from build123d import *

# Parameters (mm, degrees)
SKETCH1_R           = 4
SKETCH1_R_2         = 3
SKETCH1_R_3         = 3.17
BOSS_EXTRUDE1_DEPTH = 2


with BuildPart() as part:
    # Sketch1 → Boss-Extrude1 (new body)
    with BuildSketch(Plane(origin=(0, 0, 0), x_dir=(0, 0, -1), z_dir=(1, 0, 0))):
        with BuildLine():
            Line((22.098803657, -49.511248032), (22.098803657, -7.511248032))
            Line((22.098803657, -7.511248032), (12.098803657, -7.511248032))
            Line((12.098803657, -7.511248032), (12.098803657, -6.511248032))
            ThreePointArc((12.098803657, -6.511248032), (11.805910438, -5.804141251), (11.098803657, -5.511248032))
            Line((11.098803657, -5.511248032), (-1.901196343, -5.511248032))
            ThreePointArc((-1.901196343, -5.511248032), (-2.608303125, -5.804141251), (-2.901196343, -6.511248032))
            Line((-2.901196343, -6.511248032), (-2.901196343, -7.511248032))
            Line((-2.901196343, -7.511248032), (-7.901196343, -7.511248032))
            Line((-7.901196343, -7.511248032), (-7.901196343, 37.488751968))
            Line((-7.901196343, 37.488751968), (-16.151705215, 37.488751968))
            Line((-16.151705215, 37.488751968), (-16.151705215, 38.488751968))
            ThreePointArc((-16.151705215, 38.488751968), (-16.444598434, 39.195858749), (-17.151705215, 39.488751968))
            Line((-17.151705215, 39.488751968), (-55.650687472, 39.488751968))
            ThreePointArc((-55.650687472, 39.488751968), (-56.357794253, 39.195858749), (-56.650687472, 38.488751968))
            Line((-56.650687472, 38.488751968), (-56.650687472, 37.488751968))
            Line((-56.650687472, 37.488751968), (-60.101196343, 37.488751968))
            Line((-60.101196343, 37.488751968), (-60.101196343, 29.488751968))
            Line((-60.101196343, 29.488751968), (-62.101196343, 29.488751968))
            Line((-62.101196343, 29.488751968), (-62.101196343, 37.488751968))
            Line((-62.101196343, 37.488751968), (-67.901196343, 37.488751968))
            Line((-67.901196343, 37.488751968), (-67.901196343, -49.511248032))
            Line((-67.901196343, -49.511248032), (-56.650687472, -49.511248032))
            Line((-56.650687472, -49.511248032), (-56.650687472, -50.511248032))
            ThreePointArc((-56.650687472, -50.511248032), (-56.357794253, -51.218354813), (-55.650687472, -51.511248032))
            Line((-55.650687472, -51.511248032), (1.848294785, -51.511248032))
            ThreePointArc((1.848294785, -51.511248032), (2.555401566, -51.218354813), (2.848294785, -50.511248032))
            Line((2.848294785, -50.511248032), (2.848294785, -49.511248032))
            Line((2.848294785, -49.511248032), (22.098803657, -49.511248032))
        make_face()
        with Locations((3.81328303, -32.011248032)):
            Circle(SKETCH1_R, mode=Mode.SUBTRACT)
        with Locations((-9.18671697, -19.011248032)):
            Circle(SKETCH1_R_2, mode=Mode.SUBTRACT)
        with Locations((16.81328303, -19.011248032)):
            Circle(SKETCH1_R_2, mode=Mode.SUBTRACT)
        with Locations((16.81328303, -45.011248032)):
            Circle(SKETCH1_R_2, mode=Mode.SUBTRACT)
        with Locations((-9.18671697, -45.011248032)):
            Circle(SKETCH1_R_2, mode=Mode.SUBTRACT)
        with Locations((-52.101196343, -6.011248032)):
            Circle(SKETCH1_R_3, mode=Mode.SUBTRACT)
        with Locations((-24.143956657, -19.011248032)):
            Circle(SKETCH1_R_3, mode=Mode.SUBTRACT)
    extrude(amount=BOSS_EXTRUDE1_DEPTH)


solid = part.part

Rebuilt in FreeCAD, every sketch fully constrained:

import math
import FreeCAD as App
import Part
import Sketcher
from FreeCAD import Vector
Q = App.Units.Quantity

doc = App.newDocument("Part")
params = doc.addObject("Spreadsheet::Sheet", "Params")
for row, (alias, value) in enumerate([
    ("sketch1_diameter", "6 mm"),
    ("sketch1_diameter2", "8 mm"),
    ("sketch1_radius", "1 mm"),
    ("sketch1_diameter3", "6.34 mm"),
    ("sketch1_width", "42 mm"),
    ("pad1_length", "2 mm"),
], start=1):
    params.set(f"A{row}", alias)
    params.set(f"B{row}", "=" + value)
    params.setAlias(f"B{row}", alias)

body = doc.addObject("PartDesign::Body", "Body")

# Sketch on YZ plane
sketch1 = body.newObject("Sketcher::SketchObject", "Sketch")
sketch1.AttachmentSupport = (doc.getObject("YZ_Plane"), [""])
sketch1.MapMode = "FlatFace"
sketch1.addGeometry(Part.LineSegment(Vector(-49.5, -22.1, 0), Vector(-7.5, -22.1, 0)), False)
sketch1.addGeometry(Part.LineSegment(Vector(-7.5, -22.1, 0), Vector(-7.5, -12.1, 0)), False)
sketch1.addGeometry(Part.LineSegment(Vector(-7.5, -12.1, 0), Vector(-6.5, -12.1, 0)), False)
sketch1.addGeometry(Part.ArcOfCircle(Part.Circle(Vector(-6.5, -11.1, 0), Vector(0, 0, 1), 1), math.radians(-90), math.radians(0)), False)
sketch1.addGeometry(Part.LineSegment(Vector(-5.5, -11.1, 0), Vector(-5.5, 1.9, 0)), False)
sketch1.addGeometry(Part.ArcOfCircle(Part.Circle(Vector(-6.5, 1.9, 0), Vector(0, 0, 1), 1), math.radians(0), math.radians(90)), False)
sketch1.addGeometry(Part.LineSegment(Vector(-6.5, 2.9, 0), Vector(-7.5, 2.9, 0)), False)
sketch1.addGeometry(Part.LineSegment(Vector(-7.5, 2.9, 0), Vector(-7.5, 7.9, 0)), False)
sketch1.addGeometry(Part.LineSegment(Vector(-7.5, 7.9, 0), Vector(37.5, 7.9, 0)), False)
sketch1.addGeometry(Part.LineSegment(Vector(37.5, 7.9, 0), Vector(37.5, 16.2, 0)), False)
sketch1.addGeometry(Part.LineSegment(Vector(37.5, 16.2, 0), Vector(38.5, 16.2, 0)), False)
sketch1.addGeometry(Part.ArcOfCircle(Part.Circle(Vector(38.5, 17.2, 0), Vector(0, 0, 1), 1), math.radians(-90), math.radians(0)), False)
sketch1.addGeometry(Part.LineSegment(Vector(39.5, 17.2, 0), Vector(39.5, 55.7, 0)), False)
sketch1.addGeometry(Part.ArcOfCircle(Part.Circle(Vector(38.5, 55.7, 0), Vector(0, 0, 1), 1), math.radians(0), math.radians(90)), False)
sketch1.addGeometry(Part.LineSegment(Vector(38.5, 56.7, 0), Vector(37.5, 56.7, 0)), False)
sketch1.addGeometry(Part.LineSegment(Vector(37.5, 56.7, 0), Vector(37.5, 60.1, 0)), False)
sketch1.addGeometry(Part.LineSegment(Vector(37.5, 60.1, 0), Vector(29.5, 60.1, 0)), False)
sketch1.addGeometry(Part.LineSegment(Vector(29.5, 60.1, 0), Vector(29.5, 62.1, 0)), False)
sketch1.addGeometry(Part.LineSegment(Vector(29.5, 62.1, 0), Vector(37.5, 62.1, 0)), False)
sketch1.addGeometry(Part.LineSegment(Vector(37.5, 62.1, 0), Vector(37.5, 67.9, 0)), False)
sketch1.addGeometry(Part.LineSegment(Vector(37.5, 67.9, 0), Vector(-49.5, 67.9, 0)), False)
sketch1.addGeometry(Part.LineSegment(Vector(-49.5, 67.9, 0), Vector(-49.5, 56.7, 0)), False)
sketch1.addGeometry(Part.LineSegment(Vector(-49.5, 56.7, 0), Vector(-50.5, 56.7, 0)), False)
sketch1.addGeometry(Part.ArcOfCircle(Part.Circle(Vector(-50.5, 55.7, 0), Vector(0, 0, 1), 1), math.radians(90), math.radians(180)), False)
sketch1.addGeometry(Part.LineSegment(Vector(-51.5, 55.7, 0), Vector(-51.5, -1.8, 0)), False)
sketch1.addGeometry(Part.ArcOfCircle(Part.Circle(Vector(-50.5, -1.8, 0), Vector(0, 0, 1), 1), math.radians(-180), math.radians(-90)), False)
sketch1.addGeometry(Part.LineSegment(Vector(-50.5, -2.8, 0), Vector(-49.5, -2.8, 0)), False)
sketch1.addGeometry(Part.LineSegment(Vector(-49.5, -2.8, 0), Vector(-49.5, -22.1, 0)), False)
sketch1.addGeometry(Part.Circle(Vector(-45, 9.2, 0), Vector(0, 0, 1), 3), False)
sketch1.addGeometry(Part.Circle(Vector(-45, -16.8, 0), Vector(0, 0, 1), 3), False)
sketch1.addGeometry(Part.Circle(Vector(-32, -3.8, 0), Vector(0, 0, 1), 4), False)
sketch1.addGeometry(Part.Circle(Vector(-19, 24.1, 0), Vector(0, 0, 1), 3.2), False)
sketch1.addGeometry(Part.Circle(Vector(-6, 52.1, 0), Vector(0, 0, 1), 3.2), False)
sketch1.addGeometry(Part.Circle(Vector(-19, 9.2, 0), Vector(0, 0, 1), 3), False)
sketch1.addGeometry(Part.Circle(Vector(-19, -16.8, 0), Vector(0, 0, 1), 3), False)
sketch1.addConstraint(Sketcher.Constraint("Coincident", 0, 2, 1, 1))
sketch1.addConstraint(Sketcher.Constraint("Coincident", 1, 2, 2, 1))
sketch1.addConstraint(Sketcher.Constraint("Tangent", 2, 2, 3, 1))
sketch1.addConstraint(Sketcher.Constraint("Tangent", 3, 2, 4, 1))
sketch1.addConstraint(Sketcher.Constraint("Tangent", 4, 2, 5, 1))
sketch1.addConstraint(Sketcher.Constraint("Tangent", 5, 2, 6, 1))
sketch1.addConstraint(Sketcher.Constraint("Coincident", 6, 2, 7, 1))
sketch1.addConstraint(Sketcher.Constraint("Coincident", 7, 2, 8, 1))
sketch1.addConstraint(Sketcher.Constraint("Coincident", 8, 2, 9, 1))
sketch1.addConstraint(Sketcher.Constraint("Coincident", 9, 2, 10, 1))
sketch1.addConstraint(Sketcher.Constraint("Tangent", 10, 2, 11, 1))
sketch1.addConstraint(Sketcher.Constraint("Tangent", 11, 2, 12, 1))
sketch1.addConstraint(Sketcher.Constraint("Tangent", 12, 2, 13, 1))
sketch1.addConstraint(Sketcher.Constraint("Tangent", 13, 2, 14, 1))
sketch1.addConstraint(Sketcher.Constraint("Coincident", 14, 2, 15, 1))
sketch1.addConstraint(Sketcher.Constraint("Coincident", 15, 2, 16, 1))
sketch1.addConstraint(Sketcher.Constraint("Coincident", 16, 2, 17, 1))
sketch1.addConstraint(Sketcher.Constraint("Coincident", 17, 2, 18, 1))
sketch1.addConstraint(Sketcher.Constraint("Coincident", 18, 2, 19, 1))
sketch1.addConstraint(Sketcher.Constraint("Coincident", 19, 2, 20, 1))
sketch1.addConstraint(Sketcher.Constraint("Coincident", 20, 2, 21, 1))
sketch1.addConstraint(Sketcher.Constraint("Coincident", 21, 2, 22, 1))
sketch1.addConstraint(Sketcher.Constraint("Tangent", 22, 2, 23, 1))
sketch1.addConstraint(Sketcher.Constraint("Tangent", 23, 2, 24, 1))
sketch1.addConstraint(Sketcher.Constraint("Tangent", 24, 2, 25, 1))
sketch1.addConstraint(Sketcher.Constraint("Tangent", 25, 2, 26, 1))
sketch1.addConstraint(Sketcher.Constraint("Coincident", 26, 2, 27, 1))
sketch1.addConstraint(Sketcher.Constraint("Coincident", 27, 2, 0, 1))
sketch1.addConstraint(Sketcher.Constraint("Horizontal", 0))
sketch1.addConstraint(Sketcher.Constraint("Vertical", 1))
sketch1.addConstraint(Sketcher.Constraint("Horizontal", 2))
sketch1.addConstraint(Sketcher.Constraint("Vertical", 4))
sketch1.addConstraint(Sketcher.Constraint("Horizontal", 6))
sketch1.addConstraint(Sketcher.Constraint("Vertical", 7))
sketch1.addConstraint(Sketcher.Constraint("Horizontal", 8))
sketch1.addConstraint(Sketcher.Constraint("Vertical", 9))
sketch1.addConstraint(Sketcher.Constraint("Horizontal", 10))
sketch1.addConstraint(Sketcher.Constraint("Vertical", 12))
sketch1.addConstraint(Sketcher.Constraint("Horizontal", 14))
sketch1.addConstraint(Sketcher.Constraint("Vertical", 15))
sketch1.addConstraint(Sketcher.Constraint("Horizontal", 16))
sketch1.addConstraint(Sketcher.Constraint("Vertical", 17))
sketch1.addConstraint(Sketcher.Constraint("Horizontal", 18))
sketch1.addConstraint(Sketcher.Constraint("Vertical", 19))
sketch1.addConstraint(Sketcher.Constraint("Horizontal", 20))
sketch1.addConstraint(Sketcher.Constraint("Vertical", 21))
sketch1.addConstraint(Sketcher.Constraint("Horizontal", 22))
sketch1.addConstraint(Sketcher.Constraint("Vertical", 24))
sketch1.addConstraint(Sketcher.Constraint("Horizontal", 26))
sketch1.addConstraint(Sketcher.Constraint("Vertical", 27))
sketch1.addConstraint(Sketcher.Constraint("Equal", 3, 5))
sketch1.addConstraint(Sketcher.Constraint("Equal", 5, 11))
sketch1.addConstraint(Sketcher.Constraint("Equal", 11, 13))
sketch1.addConstraint(Sketcher.Constraint("Equal", 13, 23))
sketch1.addConstraint(Sketcher.Constraint("Equal", 23, 25))
sketch1.addConstraint(Sketcher.Constraint("Equal", 28, 29))
sketch1.addConstraint(Sketcher.Constraint("Equal", 31, 32))
sketch1.addConstraint(Sketcher.Constraint("Equal", 29, 33))
sketch1.addConstraint(Sketcher.Constraint("Equal", 33, 34))
sketch1.addConstraint(Sketcher.Constraint("Horizontal", 13, 3, 23, 3))
sketch1.addConstraint(Sketcher.Constraint("Horizontal", 28, 3, 33, 3))
sketch1.addConstraint(Sketcher.Constraint("Horizontal", 29, 3, 34, 3))
sketch1.addConstraint(Sketcher.Constraint("Vertical", 28, 3, 29, 3))
sketch1.addConstraint(Sketcher.Constraint("Vertical", 31, 3, 33, 3))
sketch1.addConstraint(Sketcher.Constraint("Vertical", 33, 3, 34, 3))
sketch1.addConstraint(Sketcher.Constraint("Vertical", 1, 2, 6, 2))
sketch1.addConstraint(Sketcher.Constraint("Vertical", 9, 2, 14, 2))
sketch1.addConstraint(Sketcher.Constraint("Vertical", 15, 2, 18, 2))
sketch1.addConstraint(Sketcher.Constraint("Vertical", 21, 2, 26, 2))
sketch1.addConstraint(Sketcher.Constraint("Equal", 6, 10))
sketch1.addConstraint(Sketcher.Constraint("Equal", 14, 22))
sketch1.addConstraint(Sketcher.Constraint("Diameter", 28, Q("6 mm")))
sketch1.addConstraint(Sketcher.Constraint("Diameter", 30, Q("8 mm")))
sketch1.addConstraint(Sketcher.Constraint("Radius", 3, Q("1 mm")))
sketch1.addConstraint(Sketcher.Constraint("Diameter", 31, Q("6.34 mm")))
sketch1.addConstraint(Sketcher.Constraint("DistanceX", 0, 1, 0, 2, Q("42 mm")))
sketch1.addConstraint(Sketcher.Constraint("DistanceX", 2, 1, 2, 2, Q("1 mm")))
sketch1.addConstraint(Sketcher.Constraint("DistanceX", 8, 1, 8, 2, Q("45 mm")))
sketch1.addConstraint(Sketcher.Constraint("DistanceX", 16, 2, 16, 1, Q("8 mm")))
sketch1.addConstraint(Sketcher.Constraint("DistanceY", 1, 1, 1, 2, Q("10 mm")))
sketch1.addConstraint(Sketcher.Constraint("DistanceY", 4, 1, 4, 2, Q("13 mm")))
sketch1.addConstraint(Sketcher.Constraint("DistanceY", 7, 1, 7, 2, Q("5 mm")))
sketch1.addConstraint(Sketcher.Constraint("DistanceY", 17, 1, 17, 2, Q("2 mm")))
sketch1.addConstraint(Sketcher.Constraint("DistanceY", 19, 1, 19, 2, Q("5.8 mm")))
sketch1.addConstraint(Sketcher.Constraint("DistanceY", 25, 3, 11, 3, Q("19 mm")))
sketch1.addConstraint(Sketcher.Constraint("DistanceY", 29, 3, 28, 3, Q("26 mm")))
sketch1.addConstraint(Sketcher.Constraint("DistanceX", 28, 3, 30, 3, Q("13 mm")))
sketch1.addConstraint(Sketcher.Constraint("DistanceY", 30, 3, 28, 3, Q("13 mm")))
sketch1.addConstraint(Sketcher.Constraint("DistanceX", 28, 3, 31, 3, Q("26 mm")))
sketch1.addConstraint(Sketcher.Constraint("DistanceX", 31, 3, 32, 3, Q("13 mm")))
sketch1.addConstraint(Sketcher.Constraint("DistanceX", 25, 3, 28, 3, Q("5.5 mm")))
sketch1.addConstraint(Sketcher.Constraint("DistanceY", 5, 3, 32, 3, Q("50.2 mm")))
sketch1.addConstraint(Sketcher.Constraint("DistanceY", 32, 3, 20, 2, Q("15.8 mm")))
sketch1.addConstraint(Sketcher.Constraint("DistanceY", 9, 1, 9, 2, Q("8.250509 mm")))
sketch1.addConstraint(Sketcher.Constraint("DistanceY", 15, 1, 15, 2, Q("3.450509 mm")))
sketch1.addConstraint(Sketcher.Constraint("DistanceX", 3, 3, -1, 1, Q("6.511248 mm")))
sketch1.addConstraint(Sketcher.Constraint("DistanceY", 25, 3, 28, 3, Q("11.035012 mm")))
sketch1.addConstraint(Sketcher.Constraint("DistanceY", 5, 3, 31, 3, Q("22.24276 mm")))
sketch1.addConstraint(Sketcher.Constraint("DistanceY", 3, 3, -1, 1, Q("11.098804 mm")))
sketch1.setExpression("Constraints[71]", "Params.sketch1_diameter")
sketch1.setExpression("Constraints[72]", "Params.sketch1_diameter2")
sketch1.setExpression("Constraints[73]", "Params.sketch1_radius")
sketch1.setExpression("Constraints[74]", "Params.sketch1_diameter3")
sketch1.setExpression("Constraints[75]", "Params.sketch1_width")
pad1 = body.newObject("PartDesign::Pad", "Pad")
pad1.Profile = sketch1
pad1.setExpression("Length", "Params.pad1_length")

doc.recompute()
